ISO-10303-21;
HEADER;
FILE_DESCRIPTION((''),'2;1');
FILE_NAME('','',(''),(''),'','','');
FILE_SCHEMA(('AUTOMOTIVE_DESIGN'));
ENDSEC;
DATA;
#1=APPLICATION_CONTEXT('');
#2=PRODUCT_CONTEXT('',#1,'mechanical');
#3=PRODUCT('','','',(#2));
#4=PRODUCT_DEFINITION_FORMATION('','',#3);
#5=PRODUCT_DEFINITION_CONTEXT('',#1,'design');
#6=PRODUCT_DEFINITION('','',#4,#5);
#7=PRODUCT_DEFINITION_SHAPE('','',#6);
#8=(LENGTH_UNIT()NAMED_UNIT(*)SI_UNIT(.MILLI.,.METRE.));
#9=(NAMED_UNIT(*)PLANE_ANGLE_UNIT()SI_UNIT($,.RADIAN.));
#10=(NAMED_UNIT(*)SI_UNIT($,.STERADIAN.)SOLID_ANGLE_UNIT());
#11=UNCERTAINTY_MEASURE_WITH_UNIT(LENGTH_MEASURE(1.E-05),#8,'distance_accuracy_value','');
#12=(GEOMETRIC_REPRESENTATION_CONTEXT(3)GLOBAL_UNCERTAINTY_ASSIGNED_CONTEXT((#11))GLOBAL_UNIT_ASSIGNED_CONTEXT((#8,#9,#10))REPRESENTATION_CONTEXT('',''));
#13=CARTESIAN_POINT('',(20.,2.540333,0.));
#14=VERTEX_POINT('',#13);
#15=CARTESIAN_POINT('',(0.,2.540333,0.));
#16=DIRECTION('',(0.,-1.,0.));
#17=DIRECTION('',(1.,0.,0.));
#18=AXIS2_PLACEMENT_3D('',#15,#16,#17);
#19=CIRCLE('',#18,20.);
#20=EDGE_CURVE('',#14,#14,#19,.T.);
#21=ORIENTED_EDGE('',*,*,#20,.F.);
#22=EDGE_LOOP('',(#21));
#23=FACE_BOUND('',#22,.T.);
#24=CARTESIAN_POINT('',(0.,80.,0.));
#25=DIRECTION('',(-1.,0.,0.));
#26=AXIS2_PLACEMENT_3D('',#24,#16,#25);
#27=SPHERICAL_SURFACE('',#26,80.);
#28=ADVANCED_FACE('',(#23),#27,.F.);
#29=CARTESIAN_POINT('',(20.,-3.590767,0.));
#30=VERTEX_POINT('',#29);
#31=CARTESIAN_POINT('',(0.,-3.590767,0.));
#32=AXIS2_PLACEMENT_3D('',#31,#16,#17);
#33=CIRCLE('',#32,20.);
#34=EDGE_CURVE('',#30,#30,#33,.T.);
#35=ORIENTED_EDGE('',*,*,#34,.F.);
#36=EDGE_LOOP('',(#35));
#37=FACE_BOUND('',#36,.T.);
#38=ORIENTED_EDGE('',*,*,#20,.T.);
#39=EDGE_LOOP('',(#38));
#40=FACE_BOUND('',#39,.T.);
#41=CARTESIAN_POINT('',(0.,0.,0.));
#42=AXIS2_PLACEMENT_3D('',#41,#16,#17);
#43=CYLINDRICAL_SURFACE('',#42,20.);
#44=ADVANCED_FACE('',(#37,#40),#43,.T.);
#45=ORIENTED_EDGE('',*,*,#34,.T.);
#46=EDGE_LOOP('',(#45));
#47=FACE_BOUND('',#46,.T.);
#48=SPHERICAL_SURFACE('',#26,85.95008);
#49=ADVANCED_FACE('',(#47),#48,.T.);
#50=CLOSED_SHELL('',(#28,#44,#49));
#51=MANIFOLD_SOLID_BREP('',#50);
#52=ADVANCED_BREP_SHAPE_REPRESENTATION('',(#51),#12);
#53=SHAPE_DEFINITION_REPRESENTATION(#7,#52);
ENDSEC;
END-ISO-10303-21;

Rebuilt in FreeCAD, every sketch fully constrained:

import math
import FreeCAD as App
import Part
import Sketcher

doc = App.newDocument("Part")
body = doc.addObject("PartDesign::Body", "Body")

# Sketch on XY plane
sketch1 = body.newObject("Sketcher::SketchObject", "Sketch")
sketch1.AttachmentSupport = (doc.getObject("XY_Plane"), [""])
sketch1.MapMode = "FlatFace"
sketch1.addGeometry([
    Part.LineSegment(App.Vector(-20, 2.540333, 0), App.Vector(-20, -3.590767, 0)),
    Part.ArcOfCircle(Part.Circle(App.Vector(0, 80, 0), App.Vector(0, 0, 1), 85.95008), math.radians(-103.455684), math.radians(-90)),
    Part.LineSegment(App.Vector(0, -5.95008, 0), App.Vector(0, 0, 0)),
    Part.ArcOfCircle(Part.Circle(App.Vector(0, 80, 0), App.Vector(0, 0, 1), 80), math.radians(-104.477512), math.radians(-90)),
], False)
sketch1.addConstraint([
    Sketcher.Constraint("Coincident", 0, 2, 1, 1),
    Sketcher.Constraint("Coincident", 1, 2, 2, 1),
    Sketcher.Constraint("Coincident", 2, 2, 3, 2),
    Sketcher.Constraint("Coincident", 3, 1, 0, 1),
    Sketcher.Constraint("Vertical", 0),
    Sketcher.Constraint("Vertical", 2),
    Sketcher.Constraint("Coincident", 2, 2, -1, 1),
    Sketcher.Constraint("Coincident", 3, 3, 1, 3),
    Sketcher.Constraint("PointOnObject", 1, 3, -2),
    Sketcher.Constraint("Radius", 3, 80.0),
    Sketcher.Constraint("DistanceX", 0, 2, -1, 1, 20.0),
    Sketcher.Constraint("Radius", 1, 85.95008),
])
revolution = body.newObject("PartDesign::Revolution", "Revolution")
revolution.Profile = sketch1
revolution.ReferenceAxis = (sketch1, ["V_Axis"])
revolution.Angle = 360

doc.recompute()
